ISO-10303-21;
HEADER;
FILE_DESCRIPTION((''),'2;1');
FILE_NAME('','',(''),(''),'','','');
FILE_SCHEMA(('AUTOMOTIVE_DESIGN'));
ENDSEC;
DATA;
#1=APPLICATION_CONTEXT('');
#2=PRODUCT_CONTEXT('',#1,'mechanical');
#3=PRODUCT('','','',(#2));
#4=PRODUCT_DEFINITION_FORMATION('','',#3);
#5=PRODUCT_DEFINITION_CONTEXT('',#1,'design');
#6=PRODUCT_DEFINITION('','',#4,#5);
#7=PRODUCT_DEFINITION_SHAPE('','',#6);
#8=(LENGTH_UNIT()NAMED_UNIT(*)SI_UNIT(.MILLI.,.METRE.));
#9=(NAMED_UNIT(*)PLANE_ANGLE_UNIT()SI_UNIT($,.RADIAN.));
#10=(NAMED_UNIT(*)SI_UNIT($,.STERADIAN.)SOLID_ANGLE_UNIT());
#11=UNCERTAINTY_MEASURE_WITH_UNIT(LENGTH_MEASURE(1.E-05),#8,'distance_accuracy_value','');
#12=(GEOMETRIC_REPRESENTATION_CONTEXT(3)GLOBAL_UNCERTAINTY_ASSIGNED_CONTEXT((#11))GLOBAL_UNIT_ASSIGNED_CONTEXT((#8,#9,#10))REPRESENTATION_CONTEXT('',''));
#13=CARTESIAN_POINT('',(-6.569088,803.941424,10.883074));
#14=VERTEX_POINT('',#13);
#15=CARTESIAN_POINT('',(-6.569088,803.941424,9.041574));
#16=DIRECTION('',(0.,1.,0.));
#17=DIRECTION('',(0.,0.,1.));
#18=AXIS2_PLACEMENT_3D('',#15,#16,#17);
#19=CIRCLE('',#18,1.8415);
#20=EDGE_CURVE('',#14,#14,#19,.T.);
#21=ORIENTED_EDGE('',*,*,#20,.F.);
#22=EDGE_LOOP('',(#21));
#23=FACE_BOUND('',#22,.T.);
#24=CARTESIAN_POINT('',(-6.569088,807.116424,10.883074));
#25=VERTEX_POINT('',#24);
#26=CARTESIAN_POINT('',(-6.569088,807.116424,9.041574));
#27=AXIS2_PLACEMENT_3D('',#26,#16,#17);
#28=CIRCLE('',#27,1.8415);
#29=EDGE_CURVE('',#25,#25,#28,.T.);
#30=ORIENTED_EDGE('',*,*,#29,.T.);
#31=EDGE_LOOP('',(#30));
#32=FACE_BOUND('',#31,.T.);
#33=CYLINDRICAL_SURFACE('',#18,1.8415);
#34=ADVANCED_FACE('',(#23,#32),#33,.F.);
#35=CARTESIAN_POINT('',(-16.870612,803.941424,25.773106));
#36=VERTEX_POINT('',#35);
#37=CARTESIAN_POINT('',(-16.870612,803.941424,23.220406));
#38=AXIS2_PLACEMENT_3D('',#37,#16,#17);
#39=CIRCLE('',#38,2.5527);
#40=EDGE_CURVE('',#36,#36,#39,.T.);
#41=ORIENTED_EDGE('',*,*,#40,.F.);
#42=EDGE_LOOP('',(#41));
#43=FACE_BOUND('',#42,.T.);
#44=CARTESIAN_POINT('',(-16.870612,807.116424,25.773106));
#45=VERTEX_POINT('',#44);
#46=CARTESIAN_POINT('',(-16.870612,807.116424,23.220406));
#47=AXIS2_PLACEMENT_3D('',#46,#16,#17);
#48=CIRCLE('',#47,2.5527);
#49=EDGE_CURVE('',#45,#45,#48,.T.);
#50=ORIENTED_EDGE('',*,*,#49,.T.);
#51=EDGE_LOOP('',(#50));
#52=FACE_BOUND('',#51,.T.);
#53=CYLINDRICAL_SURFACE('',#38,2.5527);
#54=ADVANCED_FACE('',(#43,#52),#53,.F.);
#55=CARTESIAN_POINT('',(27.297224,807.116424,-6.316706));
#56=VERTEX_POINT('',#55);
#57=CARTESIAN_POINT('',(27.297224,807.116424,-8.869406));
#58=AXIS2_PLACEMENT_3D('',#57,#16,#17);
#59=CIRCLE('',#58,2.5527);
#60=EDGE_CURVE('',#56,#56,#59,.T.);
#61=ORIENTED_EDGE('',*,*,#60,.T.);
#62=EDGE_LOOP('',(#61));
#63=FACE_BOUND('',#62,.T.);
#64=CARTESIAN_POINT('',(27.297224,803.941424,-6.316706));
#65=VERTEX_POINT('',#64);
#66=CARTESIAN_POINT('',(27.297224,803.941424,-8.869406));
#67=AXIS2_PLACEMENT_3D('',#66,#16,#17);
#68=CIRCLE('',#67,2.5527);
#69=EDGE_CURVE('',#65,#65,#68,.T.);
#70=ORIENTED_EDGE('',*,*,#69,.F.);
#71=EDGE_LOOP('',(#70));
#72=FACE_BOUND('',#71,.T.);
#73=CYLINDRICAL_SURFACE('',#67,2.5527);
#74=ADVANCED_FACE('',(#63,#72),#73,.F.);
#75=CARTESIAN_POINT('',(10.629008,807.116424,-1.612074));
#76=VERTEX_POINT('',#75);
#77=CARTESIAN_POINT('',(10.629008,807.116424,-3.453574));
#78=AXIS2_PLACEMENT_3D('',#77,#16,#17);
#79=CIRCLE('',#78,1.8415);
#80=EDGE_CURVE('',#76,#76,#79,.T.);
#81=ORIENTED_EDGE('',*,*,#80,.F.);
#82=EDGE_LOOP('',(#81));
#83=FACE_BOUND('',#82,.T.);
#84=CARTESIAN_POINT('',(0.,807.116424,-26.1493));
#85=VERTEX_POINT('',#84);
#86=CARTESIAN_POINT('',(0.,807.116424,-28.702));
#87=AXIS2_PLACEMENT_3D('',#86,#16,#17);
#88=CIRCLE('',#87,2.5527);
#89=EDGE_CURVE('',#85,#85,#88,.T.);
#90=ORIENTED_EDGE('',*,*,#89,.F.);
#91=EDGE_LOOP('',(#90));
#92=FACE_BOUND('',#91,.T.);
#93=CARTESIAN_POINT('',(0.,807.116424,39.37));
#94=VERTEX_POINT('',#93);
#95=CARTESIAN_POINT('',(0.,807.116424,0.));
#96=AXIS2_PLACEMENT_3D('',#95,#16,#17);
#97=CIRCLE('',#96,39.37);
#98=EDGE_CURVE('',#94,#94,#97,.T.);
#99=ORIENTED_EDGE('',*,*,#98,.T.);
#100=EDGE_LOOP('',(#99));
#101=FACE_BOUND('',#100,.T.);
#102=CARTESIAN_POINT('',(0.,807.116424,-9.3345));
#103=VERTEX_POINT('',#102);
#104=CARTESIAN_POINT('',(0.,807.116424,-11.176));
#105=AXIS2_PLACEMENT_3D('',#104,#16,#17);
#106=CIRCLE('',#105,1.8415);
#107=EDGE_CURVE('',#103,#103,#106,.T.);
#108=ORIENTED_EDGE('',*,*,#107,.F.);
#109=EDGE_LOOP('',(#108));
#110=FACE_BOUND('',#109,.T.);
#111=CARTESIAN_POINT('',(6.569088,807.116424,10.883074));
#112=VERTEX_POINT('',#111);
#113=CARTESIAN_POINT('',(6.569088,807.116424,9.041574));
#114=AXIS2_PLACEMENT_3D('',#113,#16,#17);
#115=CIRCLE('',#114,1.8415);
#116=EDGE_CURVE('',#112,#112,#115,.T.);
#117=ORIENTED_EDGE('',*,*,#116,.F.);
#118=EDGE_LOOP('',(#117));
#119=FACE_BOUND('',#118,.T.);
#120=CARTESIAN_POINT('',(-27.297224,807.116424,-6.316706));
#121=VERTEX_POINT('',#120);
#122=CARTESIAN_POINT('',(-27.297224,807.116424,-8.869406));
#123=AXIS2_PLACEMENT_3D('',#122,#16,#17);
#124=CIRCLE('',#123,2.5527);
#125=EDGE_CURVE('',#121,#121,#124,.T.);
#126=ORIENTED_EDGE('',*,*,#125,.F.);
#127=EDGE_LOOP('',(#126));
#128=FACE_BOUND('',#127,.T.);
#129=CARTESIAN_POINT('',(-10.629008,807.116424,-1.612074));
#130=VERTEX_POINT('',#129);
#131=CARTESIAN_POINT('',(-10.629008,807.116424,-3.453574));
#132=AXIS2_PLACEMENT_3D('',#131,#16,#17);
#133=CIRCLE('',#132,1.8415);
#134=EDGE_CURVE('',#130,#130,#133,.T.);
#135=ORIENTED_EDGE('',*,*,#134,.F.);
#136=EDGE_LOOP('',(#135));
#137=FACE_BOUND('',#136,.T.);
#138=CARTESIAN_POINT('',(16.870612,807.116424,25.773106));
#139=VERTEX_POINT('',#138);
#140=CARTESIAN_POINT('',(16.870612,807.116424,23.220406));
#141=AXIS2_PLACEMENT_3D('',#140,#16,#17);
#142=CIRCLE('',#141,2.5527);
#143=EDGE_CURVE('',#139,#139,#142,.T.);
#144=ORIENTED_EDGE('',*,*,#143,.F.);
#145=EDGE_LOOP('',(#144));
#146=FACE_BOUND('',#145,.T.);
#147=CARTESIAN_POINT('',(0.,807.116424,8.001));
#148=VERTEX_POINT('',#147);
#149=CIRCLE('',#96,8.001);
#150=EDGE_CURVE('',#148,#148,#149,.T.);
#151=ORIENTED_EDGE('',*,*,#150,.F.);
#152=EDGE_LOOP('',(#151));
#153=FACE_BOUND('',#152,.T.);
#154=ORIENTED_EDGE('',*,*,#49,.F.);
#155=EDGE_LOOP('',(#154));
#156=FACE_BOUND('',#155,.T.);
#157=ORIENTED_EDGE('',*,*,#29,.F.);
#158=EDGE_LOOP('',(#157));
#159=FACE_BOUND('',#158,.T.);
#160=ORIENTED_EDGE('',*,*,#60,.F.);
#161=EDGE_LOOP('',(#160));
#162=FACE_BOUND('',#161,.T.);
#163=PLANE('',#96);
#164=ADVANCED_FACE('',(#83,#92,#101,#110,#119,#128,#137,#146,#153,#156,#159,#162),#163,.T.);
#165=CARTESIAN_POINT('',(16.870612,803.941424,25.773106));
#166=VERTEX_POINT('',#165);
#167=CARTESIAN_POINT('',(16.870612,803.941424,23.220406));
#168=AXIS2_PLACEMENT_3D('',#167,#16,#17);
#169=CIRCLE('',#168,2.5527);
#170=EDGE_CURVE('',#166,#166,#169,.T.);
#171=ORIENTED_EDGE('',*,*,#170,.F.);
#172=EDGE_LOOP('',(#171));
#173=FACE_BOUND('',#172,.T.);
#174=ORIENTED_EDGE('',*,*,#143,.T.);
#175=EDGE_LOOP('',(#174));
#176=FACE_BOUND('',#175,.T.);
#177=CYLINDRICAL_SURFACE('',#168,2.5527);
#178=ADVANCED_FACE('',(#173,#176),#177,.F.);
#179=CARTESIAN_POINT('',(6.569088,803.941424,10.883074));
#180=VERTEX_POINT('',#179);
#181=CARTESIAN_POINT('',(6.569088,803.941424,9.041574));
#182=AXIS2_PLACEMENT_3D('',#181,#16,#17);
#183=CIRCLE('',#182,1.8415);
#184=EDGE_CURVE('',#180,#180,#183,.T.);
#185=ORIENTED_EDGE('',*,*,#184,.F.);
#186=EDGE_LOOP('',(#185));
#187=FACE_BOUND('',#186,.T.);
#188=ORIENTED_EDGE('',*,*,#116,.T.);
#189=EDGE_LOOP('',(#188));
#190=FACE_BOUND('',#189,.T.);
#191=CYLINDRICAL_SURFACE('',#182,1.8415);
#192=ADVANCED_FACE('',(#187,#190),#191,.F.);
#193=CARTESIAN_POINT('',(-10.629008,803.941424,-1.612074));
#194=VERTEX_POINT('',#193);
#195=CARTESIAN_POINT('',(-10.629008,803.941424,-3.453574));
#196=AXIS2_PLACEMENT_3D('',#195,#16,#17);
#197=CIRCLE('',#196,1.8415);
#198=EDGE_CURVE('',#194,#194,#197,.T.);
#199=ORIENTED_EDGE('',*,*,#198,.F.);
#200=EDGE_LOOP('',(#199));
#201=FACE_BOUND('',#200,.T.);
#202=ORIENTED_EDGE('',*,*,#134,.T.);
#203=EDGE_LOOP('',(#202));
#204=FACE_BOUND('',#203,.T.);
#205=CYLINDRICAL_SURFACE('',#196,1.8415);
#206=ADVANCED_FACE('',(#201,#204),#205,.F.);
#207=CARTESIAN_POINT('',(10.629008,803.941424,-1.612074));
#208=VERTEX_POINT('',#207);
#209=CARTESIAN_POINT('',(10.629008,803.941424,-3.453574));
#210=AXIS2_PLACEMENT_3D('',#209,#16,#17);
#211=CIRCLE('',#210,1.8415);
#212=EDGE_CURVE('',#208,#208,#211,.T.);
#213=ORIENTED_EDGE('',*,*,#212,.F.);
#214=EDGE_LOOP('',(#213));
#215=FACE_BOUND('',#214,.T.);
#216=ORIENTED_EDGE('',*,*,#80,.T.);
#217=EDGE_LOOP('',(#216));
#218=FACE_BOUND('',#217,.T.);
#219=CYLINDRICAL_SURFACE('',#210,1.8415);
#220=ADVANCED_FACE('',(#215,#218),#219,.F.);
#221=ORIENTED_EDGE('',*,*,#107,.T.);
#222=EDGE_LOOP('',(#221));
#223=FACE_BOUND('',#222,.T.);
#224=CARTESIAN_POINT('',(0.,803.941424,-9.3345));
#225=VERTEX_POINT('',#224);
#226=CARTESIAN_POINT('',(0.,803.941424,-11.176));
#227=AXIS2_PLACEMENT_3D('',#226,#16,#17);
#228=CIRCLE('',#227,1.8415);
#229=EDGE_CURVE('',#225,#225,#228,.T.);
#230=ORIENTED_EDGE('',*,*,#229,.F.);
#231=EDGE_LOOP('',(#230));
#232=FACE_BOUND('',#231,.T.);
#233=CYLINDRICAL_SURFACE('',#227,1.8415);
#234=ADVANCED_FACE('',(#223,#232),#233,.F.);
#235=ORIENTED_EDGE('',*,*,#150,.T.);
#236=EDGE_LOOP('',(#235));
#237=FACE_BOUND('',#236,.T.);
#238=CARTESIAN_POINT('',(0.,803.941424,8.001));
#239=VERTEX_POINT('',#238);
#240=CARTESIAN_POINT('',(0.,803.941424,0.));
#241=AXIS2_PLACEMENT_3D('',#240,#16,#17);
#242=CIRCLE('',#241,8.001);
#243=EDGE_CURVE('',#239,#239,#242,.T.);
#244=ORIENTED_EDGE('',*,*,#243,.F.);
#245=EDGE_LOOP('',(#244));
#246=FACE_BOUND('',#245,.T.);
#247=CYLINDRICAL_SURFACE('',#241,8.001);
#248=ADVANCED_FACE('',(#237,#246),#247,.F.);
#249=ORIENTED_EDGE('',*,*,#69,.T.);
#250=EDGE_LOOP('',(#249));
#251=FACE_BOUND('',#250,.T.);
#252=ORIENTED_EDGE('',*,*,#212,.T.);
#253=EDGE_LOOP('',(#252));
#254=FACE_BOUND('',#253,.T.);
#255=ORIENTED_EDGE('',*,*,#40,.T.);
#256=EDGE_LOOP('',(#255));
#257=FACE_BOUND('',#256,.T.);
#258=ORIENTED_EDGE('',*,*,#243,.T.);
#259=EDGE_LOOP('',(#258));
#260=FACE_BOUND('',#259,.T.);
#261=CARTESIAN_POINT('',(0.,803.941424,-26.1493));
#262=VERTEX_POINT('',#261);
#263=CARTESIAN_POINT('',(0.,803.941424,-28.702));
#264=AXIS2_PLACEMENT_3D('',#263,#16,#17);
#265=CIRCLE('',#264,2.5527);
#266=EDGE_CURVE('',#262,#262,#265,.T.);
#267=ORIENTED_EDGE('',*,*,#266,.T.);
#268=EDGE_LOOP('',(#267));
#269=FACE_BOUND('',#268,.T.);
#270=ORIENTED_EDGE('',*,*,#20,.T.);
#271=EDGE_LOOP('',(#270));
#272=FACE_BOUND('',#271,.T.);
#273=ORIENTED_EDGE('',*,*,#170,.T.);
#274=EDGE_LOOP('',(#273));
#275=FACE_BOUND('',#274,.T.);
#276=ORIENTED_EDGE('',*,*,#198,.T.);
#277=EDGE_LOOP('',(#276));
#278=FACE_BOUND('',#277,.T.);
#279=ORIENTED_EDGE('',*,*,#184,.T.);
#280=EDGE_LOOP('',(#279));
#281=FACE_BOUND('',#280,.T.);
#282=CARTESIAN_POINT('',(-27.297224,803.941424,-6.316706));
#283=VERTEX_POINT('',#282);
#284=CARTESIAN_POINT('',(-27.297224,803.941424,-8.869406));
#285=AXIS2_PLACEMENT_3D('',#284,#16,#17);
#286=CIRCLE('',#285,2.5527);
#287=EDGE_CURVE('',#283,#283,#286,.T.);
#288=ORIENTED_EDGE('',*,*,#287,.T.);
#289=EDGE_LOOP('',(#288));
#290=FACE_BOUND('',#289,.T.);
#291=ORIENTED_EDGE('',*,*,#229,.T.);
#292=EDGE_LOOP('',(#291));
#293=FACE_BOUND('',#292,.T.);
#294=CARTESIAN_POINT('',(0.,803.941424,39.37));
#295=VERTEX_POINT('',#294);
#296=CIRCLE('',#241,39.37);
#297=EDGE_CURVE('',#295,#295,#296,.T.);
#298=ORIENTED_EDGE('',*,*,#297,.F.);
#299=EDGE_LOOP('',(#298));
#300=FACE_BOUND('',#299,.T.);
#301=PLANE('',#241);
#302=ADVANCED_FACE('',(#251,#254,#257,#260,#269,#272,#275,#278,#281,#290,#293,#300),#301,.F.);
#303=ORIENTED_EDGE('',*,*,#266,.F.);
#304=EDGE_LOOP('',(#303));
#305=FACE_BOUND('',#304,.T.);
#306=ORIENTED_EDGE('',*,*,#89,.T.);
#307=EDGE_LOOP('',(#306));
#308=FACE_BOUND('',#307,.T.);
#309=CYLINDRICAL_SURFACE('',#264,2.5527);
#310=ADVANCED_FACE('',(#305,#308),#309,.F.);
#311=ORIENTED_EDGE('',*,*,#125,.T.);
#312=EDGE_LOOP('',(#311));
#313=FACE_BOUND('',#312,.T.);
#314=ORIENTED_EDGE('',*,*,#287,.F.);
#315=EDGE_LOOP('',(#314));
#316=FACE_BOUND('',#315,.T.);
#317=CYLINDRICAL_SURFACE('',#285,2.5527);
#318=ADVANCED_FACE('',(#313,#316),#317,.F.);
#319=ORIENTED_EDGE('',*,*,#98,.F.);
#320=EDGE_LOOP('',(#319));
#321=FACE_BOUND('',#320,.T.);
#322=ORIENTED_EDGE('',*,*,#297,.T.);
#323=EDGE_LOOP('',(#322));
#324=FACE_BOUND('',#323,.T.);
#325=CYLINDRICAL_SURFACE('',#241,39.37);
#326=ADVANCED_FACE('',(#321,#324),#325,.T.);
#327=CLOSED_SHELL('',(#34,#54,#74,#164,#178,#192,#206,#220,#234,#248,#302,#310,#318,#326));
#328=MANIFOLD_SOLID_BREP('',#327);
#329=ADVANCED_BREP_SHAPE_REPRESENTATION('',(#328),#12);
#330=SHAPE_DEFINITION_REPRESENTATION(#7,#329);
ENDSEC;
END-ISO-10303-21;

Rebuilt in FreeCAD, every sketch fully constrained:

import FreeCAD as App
import Part
import Sketcher
Q = App.Units.Quantity

doc = App.newDocument("Part")
params = doc.addObject("Spreadsheet::Sheet", "Params")
for row, (alias, value) in enumerate([
    ("sketch1_diameter", "3.1 in"),
    ("pad1_length", "0.125 in"),
    ("sketch2_diameter", "0.63 in"),
    ("sketch2_diameter2", "0.145 in"),
    ("sketch2_diameter3", "0.201 in"),
], start=1):
    params.set(f"A{row}", alias)
    params.set(f"B{row}", "=" + value)
    params.setAlias(f"B{row}", alias)

body = doc.addObject("PartDesign::Body", "Body")

# Sketch on XZ plane
sketch1 = doc.addObject("Sketcher::SketchObject", "Sketch")
body.addObject(sketch1)
sketch1.AttachmentSupport = (doc.XZ_Plane, [""])
sketch1.MapMode = "FlatFace"
sketch1.AttachmentOffset = App.Placement(App.Vector(0, 0, -807.116424), App.Rotation())
sketch1.addGeometry(Part.Circle(App.Vector(0, 0, 0), App.Vector(0, 0, 1), 39), False)
sketch1.addConstraint([
    Sketcher.Constraint("Coincident", 0, 3, -1, 1),
    Sketcher.Constraint("Diameter", 0, Q("3.1 in")),
])
sketch1.setExpression("Constraints[1]", "Params.sketch1_diameter")
pad1 = doc.addObject("PartDesign::Pad", "Pad")
body.addObject(pad1)
pad1.Profile = sketch1
pad1.setExpression("Length", "Params.pad1_length")

# Sketch on XZ plane
sketch2 = doc.addObject("Sketcher::SketchObject", "Sketch001")
body.addObject(sketch2)
sketch2.AttachmentSupport = (doc.XZ_Plane, [""])
sketch2.MapMode = "FlatFace"
sketch2.AttachmentOffset = App.Placement(App.Vector(0, 0, -807.116424), App.Rotation())
sketch2.addGeometry([
    Part.Circle(App.Vector(0, 0, 0), App.Vector(0, 0, 1), 8),  # 0
    Part.Circle(App.Vector(0, -11.2, 0), App.Vector(0, 0, 1), 1.8),  # 1
    Part.Circle(App.Vector(10.6, -3.5, 0), App.Vector(0, 0, 1), 1.8),  # 2
    Part.Circle(App.Vector(6.6, 9, 0), App.Vector(0, 0, 1), 1.8),  # 3
    Part.Circle(App.Vector(-6.6, 9, 0), App.Vector(0, 0, 1), 1.8),  # 4
    Part.Circle(App.Vector(-10.6, -3.5, 0), App.Vector(0, 0, 1), 1.8),  # 5
    Part.Circle(App.Vector(0, -28.7, 0), App.Vector(0, 0, 1), 2.6),  # 6
    Part.Circle(App.Vector(27.3, -8.9, 0), App.Vector(0, 0, 1), 2.6),  # 7
    Part.Circle(App.Vector(16.9, 23.2, 0), App.Vector(0, 0, 1), 2.6),  # 8
    Part.Circle(App.Vector(-16.9, 23.2, 0), App.Vector(0, 0, 1), 2.6),  # 9
    Part.Circle(App.Vector(-27.3, -8.9, 0), App.Vector(0, 0, 1), 2.6),  # 10
], False)
sketch2.addConstraint([
    Sketcher.Constraint("Coincident", 0, 3, -1, 1),
    Sketcher.Constraint("Equal", 1, 2),
    Sketcher.Constraint("Equal", 2, 3),
    Sketcher.Constraint("Equal", 3, 4),
    Sketcher.Constraint("Equal", 4, 5),
    Sketcher.Constraint("Equal", 6, 7),
    Sketcher.Constraint("Equal", 7, 8),
    Sketcher.Constraint("Equal", 8, 9),
    Sketcher.Constraint("Equal", 9, 10),
    Sketcher.Constraint("Symmetric", 3, 3, 4, 3, -2),
    Sketcher.Constraint("Symmetric", 2, 3, 5, 3, -2),
    Sketcher.Constraint("Symmetric", 8, 3, 9, 3, -2),
    Sketcher.Constraint("Symmetric", 7, 3, 10, 3, -2),
    Sketcher.Constraint("PointOnObject", 1, 3, -2),
    Sketcher.Constraint("PointOnObject", 6, 3, -2),
    Sketcher.Constraint("Diameter", 0, Q("0.63 in")),
    Sketcher.Constraint("Diameter", 1, Q("0.145 in")),
    Sketcher.Constraint("Diameter", 6, Q("0.201 in")),
    Sketcher.Constraint("DistanceY", 1, 3, -1, 1, Q("0.44 in")),
    Sketcher.Constraint("DistanceY", 6, 3, -1, 1, Q("1.13 in")),
    Sketcher.Constraint("DistanceX", 4, 3, 8, 3, 23.4397),
    Sketcher.Constraint("DistanceX", 3, 3, 2, 3, 4.05992),
    Sketcher.Constraint("DistanceY", 7, 3, 2, 3, 5.415832),
    Sketcher.Constraint("DistanceY", 7, 3, 3, 3, 17.91098),
    Sketcher.Constraint("DistanceY", 3, 3, 8, 3, 14.178832),
    Sketcher.Constraint("DistanceX", 8, 3, 7, 3, 10.426612),
    Sketcher.Constraint("DistanceX", -1, 1, 2, 3, 10.629008),
    Sketcher.Constraint("DistanceY", 2, 3, -1, 1, 3.453574),
])
sketch2.setExpression("Constraints[15]", "Params.sketch2_diameter")
sketch2.setExpression("Constraints[16]", "Params.sketch2_diameter2")
sketch2.setExpression("Constraints[17]", "Params.sketch2_diameter3")
pocket1 = doc.addObject("PartDesign::Pocket", "Pocket")
body.addObject(pocket1)
pocket1.Profile = sketch2
pocket1.Type = "ThroughAll"
pocket1.Reversed = True

doc.recompute()
